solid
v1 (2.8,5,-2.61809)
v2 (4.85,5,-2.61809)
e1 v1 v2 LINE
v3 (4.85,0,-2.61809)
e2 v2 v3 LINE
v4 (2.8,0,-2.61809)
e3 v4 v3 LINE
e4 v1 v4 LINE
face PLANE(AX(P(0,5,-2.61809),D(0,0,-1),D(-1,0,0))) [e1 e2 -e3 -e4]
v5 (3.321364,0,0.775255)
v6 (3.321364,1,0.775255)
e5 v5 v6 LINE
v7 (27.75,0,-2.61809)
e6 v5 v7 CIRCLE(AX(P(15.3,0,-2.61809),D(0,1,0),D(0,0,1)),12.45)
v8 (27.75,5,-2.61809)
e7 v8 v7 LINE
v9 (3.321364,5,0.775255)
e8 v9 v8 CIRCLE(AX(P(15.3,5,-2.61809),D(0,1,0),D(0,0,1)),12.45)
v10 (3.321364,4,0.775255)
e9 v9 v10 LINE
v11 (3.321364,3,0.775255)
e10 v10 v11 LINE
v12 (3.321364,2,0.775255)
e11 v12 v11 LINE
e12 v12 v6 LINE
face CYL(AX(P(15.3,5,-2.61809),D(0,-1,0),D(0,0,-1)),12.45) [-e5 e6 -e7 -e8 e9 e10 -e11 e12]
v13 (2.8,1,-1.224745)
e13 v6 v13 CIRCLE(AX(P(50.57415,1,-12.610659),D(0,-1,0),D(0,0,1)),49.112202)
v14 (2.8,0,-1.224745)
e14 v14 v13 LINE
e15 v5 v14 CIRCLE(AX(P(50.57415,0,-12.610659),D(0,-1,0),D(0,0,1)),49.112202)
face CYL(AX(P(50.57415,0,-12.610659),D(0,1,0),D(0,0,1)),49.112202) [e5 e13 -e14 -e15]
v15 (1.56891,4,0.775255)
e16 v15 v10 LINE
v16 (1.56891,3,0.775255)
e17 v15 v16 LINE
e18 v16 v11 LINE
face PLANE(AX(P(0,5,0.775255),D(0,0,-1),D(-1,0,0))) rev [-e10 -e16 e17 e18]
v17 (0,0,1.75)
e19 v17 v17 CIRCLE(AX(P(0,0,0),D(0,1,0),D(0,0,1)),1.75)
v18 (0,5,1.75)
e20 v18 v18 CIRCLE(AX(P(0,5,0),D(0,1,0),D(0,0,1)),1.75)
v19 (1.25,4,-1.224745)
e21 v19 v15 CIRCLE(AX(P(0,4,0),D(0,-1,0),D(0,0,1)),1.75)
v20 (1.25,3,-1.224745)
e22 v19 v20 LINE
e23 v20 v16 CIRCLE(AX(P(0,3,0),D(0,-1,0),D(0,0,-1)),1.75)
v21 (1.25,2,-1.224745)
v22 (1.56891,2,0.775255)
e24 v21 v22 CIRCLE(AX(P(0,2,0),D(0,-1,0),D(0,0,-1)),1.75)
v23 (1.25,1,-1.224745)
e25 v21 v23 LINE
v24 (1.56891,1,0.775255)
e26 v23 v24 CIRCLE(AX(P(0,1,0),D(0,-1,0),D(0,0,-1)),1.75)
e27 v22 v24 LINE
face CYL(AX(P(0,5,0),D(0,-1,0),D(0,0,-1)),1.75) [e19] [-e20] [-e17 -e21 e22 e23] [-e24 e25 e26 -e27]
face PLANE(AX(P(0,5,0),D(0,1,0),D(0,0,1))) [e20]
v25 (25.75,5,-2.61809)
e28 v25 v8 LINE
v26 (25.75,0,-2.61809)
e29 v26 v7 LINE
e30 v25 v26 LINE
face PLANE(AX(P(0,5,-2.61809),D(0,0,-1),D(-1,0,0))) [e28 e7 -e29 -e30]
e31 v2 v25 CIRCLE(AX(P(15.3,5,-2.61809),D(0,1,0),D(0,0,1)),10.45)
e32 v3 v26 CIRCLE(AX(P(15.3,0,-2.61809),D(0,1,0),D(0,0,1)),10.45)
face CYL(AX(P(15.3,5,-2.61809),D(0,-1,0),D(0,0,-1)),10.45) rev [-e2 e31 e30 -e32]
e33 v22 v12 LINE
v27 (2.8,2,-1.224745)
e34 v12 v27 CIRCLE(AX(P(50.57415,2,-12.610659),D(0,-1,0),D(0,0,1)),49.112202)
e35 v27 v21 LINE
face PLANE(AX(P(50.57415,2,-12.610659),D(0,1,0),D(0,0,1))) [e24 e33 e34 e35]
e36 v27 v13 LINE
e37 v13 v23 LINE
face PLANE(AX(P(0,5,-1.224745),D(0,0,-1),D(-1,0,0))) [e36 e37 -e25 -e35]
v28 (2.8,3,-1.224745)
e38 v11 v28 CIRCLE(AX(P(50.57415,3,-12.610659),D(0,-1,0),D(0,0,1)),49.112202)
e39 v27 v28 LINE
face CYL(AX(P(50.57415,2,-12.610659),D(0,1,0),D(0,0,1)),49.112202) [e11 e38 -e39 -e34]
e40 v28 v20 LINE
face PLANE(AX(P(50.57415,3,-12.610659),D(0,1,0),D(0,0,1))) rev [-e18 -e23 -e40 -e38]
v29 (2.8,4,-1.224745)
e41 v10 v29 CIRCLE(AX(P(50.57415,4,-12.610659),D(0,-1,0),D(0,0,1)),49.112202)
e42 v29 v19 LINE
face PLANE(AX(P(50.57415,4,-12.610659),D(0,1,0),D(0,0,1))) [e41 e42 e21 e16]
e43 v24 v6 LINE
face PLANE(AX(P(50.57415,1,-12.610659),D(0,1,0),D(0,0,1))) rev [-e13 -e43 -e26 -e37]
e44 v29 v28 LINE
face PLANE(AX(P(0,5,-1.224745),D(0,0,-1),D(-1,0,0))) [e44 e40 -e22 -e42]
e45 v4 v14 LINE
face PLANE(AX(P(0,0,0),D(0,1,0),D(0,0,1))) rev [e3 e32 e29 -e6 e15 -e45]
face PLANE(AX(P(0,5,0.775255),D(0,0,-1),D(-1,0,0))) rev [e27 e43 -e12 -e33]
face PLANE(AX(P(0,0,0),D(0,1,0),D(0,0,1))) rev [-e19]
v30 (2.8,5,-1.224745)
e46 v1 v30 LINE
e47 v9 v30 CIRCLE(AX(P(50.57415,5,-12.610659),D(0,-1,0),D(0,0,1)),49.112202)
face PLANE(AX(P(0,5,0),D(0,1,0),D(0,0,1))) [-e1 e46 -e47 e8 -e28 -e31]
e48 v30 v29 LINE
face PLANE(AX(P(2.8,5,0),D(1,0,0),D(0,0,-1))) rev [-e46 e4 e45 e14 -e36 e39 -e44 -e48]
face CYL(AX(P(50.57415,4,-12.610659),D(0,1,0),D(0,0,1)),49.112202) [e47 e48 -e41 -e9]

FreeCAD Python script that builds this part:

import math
import FreeCAD as App
import Part
import Sketcher

doc = App.newDocument("Part")
body = doc.addObject("PartDesign::Body", "Body")

sketch1 = body.newObject("Sketcher::SketchObject", "Sketch")
sketch1.AttachmentSupport = (doc.getObject("XZ_Plane"), [""])
sketch1.MapMode = "FlatFace"
sketch1.addGeometry(Part.LineSegment(App.Vector(4.85, -2.61809, 0), App.Vector(2.8, -2.61809, 0)), False)
sketch1.addGeometry(Part.LineSegment(App.Vector(2.8, -2.61809, 0), App.Vector(2.8, -1.224745, 0)), False)
sketch1.addGeometry(Part.LineSegment(App.Vector(2.8, -1.224745, 0), App.Vector(1.25, -1.224745, 0)), False)
sketch1.addGeometry(Part.ArcOfCircle(Part.Circle(App.Vector(0, 0, 0), App.Vector(0, 0, 1), 1.75), math.radians(26.295637), math.radians(315.584691)), False)
sketch1.addGeometry(Part.LineSegment(App.Vector(1.56891, 0.775255, 0), App.Vector(3.321364, 0.775255, 0)), False)
sketch1.addGeometry(Part.ArcOfCircle(Part.Circle(App.Vector(15.3, -2.61809, 0), App.Vector(0, 0, 1), 12.45), math.radians(0), math.radians(164.183472)), False)
sketch1.addGeometry(Part.LineSegment(App.Vector(27.75, -2.61809, 0), App.Vector(25.75, -2.61809, 0)), False)
sketch1.addGeometry(Part.ArcOfCircle(Part.Circle(App.Vector(15.3, -2.61809, 0), App.Vector(0, 0, 1), 10.45), math.radians(0), math.radians(180)), False)
sketch1.addConstraint(Sketcher.Constraint("Coincident", 0, 2, 1, 1))
sketch1.addConstraint(Sketcher.Constraint("Coincident", 1, 2, 2, 1))
sketch1.addConstraint(Sketcher.Constraint("Coincident", 2, 2, 3, 2))
sketch1.addConstraint(Sketcher.Constraint("Coincident", 3, 1, 4, 1))
sketch1.addConstraint(Sketcher.Constraint("Coincident", 4, 2, 5, 2))
sketch1.addConstraint(Sketcher.Constraint("Coincident", 5, 1, 6, 1))
sketch1.addConstraint(Sketcher.Constraint("Coincident", 6, 2, 7, 1))
sketch1.addConstraint(Sketcher.Constraint("Coincident", 7, 2, 0, 1))
sketch1.addConstraint(Sketcher.Constraint("Horizontal", 0))
sketch1.addConstraint(Sketcher.Constraint("Vertical", 1))
sketch1.addConstraint(Sketcher.Constraint("Horizontal", 2))
sketch1.addConstraint(Sketcher.Constraint("Horizontal", 4))
sketch1.addConstraint(Sketcher.Constraint("Horizontal", 6))
sketch1.addConstraint(Sketcher.Constraint("Coincident", 3, 3, -1, 1))
sketch1.addConstraint(Sketcher.Constraint("Coincident", 7, 3, 5, 3))
sketch1.addConstraint(Sketcher.Constraint("Horizontal", 7, 3, 0, 2))
sketch1.addConstraint(Sketcher.Constraint("Horizontal", 0, 2, 5, 1))
sketch1.addConstraint(Sketcher.Constraint("DistanceX", 6, 2, 6, 1, 2.0))
sketch1.addConstraint(Sketcher.Constraint("Radius", 3, 1.75))
sketch1.addConstraint(Sketcher.Constraint("Radius", 5, 12.45))
sketch1.addConstraint(Sketcher.Constraint("DistanceY", 2, 2, 3, 1, 2.0))
sketch1.addConstraint(Sketcher.Constraint("DistanceX", 0, 2, 0, 1, 2.05))
sketch1.addConstraint(Sketcher.Constraint("DistanceX", 2, 2, 2, 1, 1.55))
sketch1.addConstraint(Sketcher.Constraint("DistanceX", -1, 1, 5, 3, 15.3))
sketch1.addConstraint(Sketcher.Constraint("DistanceX", 4, 1, 4, 2, 1.752454))
pad1 = body.newObject("PartDesign::Pad", "Pad")
pad1.Profile = sketch1
pad1.Length = 5
pad1.Reversed = True

sketch2 = body.newObject("Sketcher::SketchObject", "Sketch001")
sketch2.AttachmentSupport = (doc.getObject("XZ_Plane"), [""])
sketch2.MapMode = "FlatFace"
sketch2.AttachmentOffset = App.Placement(App.Vector(0, 0, -4), App.Rotation())
sketch2.addGeometry(Part.LineSegment(App.Vector(2.8, -1.224745, 0), App.Vector(1.25, -1.224745, 0)), False)
sketch2.addGeometry(Part.ArcOfCircle(Part.Circle(App.Vector(0, 0, 0), App.Vector(0, 0, 1), 1.75), math.radians(-44.415309), math.radians(26.295637)), False)
sketch2.addGeometry(Part.LineSegment(App.Vector(1.56891, 0.775255, 0), App.Vector(3.321364, 0.775255, 0)), False)
sketch2.addGeometry(Part.ArcOfCircle(Part.Circle(App.Vector(50.57415, -12.610659, 0), App.Vector(0, 0, 1), 49.112203), math.radians(164.183472), math.radians(166.594886)), False)
sketch2.addConstraint(Sketcher.Constraint("Coincident", 0, 2, 1, 1))
sketch2.addConstraint(Sketcher.Constraint("Coincident", 1, 2, 2, 1))
sketch2.addConstraint(Sketcher.Constraint("Coincident", 2, 2, 3, 1))
sketch2.addConstraint(Sketcher.Constraint("Coincident", 3, 2, 0, 1))
sketch2.addConstraint(Sketcher.Constraint("Horizontal", 0))
sketch2.addConstraint(Sketcher.Constraint("Horizontal", 2))
sketch2.addConstraint(Sketcher.Constraint("Coincident", 1, 3, -1, 1))
sketch2.addConstraint(Sketcher.Constraint("Radius", 1, 1.75))
sketch2.addConstraint(Sketcher.Constraint("DistanceY", 0, 2, 1, 2, 2.0))
sketch2.addConstraint(Sketcher.Constraint("DistanceX", 0, 2, 0, 1, 1.55))
sketch2.addConstraint(Sketcher.Constraint("DistanceX", -1, 1, 3, 2, 2.8))
sketch2.addConstraint(Sketcher.Constraint("Radius", 3, 49.112203))
sketch2.addConstraint(Sketcher.Constraint("DistanceX", 2, 1, 2, 2, 1.752454))
pocket1 = body.newObject("PartDesign::Pocket", "Pocket")
pocket1.Profile = sketch2
pocket1.Length = 1

sketch3 = body.newObject("Sketcher::SketchObject", "Sketch002")
sketch3.AttachmentSupport = (doc.getObject("XZ_Plane"), [""])
sketch3.MapMode = "FlatFace"
sketch3.AttachmentOffset = App.Placement(App.Vector(0, 0, -2), App.Rotation())
sketch3.addGeometry(Part.LineSegment(App.Vector(2.8, -1.224745, 0), App.Vector(1.25, -1.224745, 0)), False)
sketch3.addGeometry(Part.ArcOfCircle(Part.Circle(App.Vector(0, 0, 0), App.Vector(0, 0, 1), 1.75), math.radians(-44.415309), math.radians(26.295637)), False)
sketch3.addGeometry(Part.LineSegment(App.Vector(1.56891, 0.775255, 0), App.Vector(3.321364, 0.775255, 0)), False)
sketch3.addGeometry(Part.ArcOfCircle(Part.Circle(App.Vector(50.57415, -12.610659, 0), App.Vector(0, 0, 1), 49.112203), math.radians(164.183472), math.radians(166.594886)), False)
sketch3.addConstraint(Sketcher.Constraint("Coincident", 0, 2, 1, 1))
sketch3.addConstraint(Sketcher.Constraint("Coincident", 1, 2, 2, 1))
sketch3.addConstraint(Sketcher.Constraint("Coincident", 2, 2, 3, 1))
sketch3.addConstraint(Sketcher.Constraint("Coincident", 3, 2, 0, 1))
sketch3.addConstraint(Sketcher.Constraint("Horizontal", 0))
sketch3.addConstraint(Sketcher.Constraint("Horizontal", 2))
sketch3.addConstraint(Sketcher.Constraint("Coincident", 1, 3, -1, 1))
sketch3.addConstraint(Sketcher.Constraint("Radius", 1, 1.75))
sketch3.addConstraint(Sketcher.Constraint("DistanceY", 0, 2, 1, 2, 2.0))
sketch3.addConstraint(Sketcher.Constraint("DistanceX", 0, 2, 0, 1, 1.55))
sketch3.addConstraint(Sketcher.Constraint("DistanceX", -1, 1, 3, 2, 2.8))
sketch3.addConstraint(Sketcher.Constraint("Radius", 3, 49.112203))
sketch3.addConstraint(Sketcher.Constraint("DistanceX", 2, 1, 2, 2, 1.752454))
pocket2 = body.newObject("PartDesign::Pocket", "Pocket001")
pocket2.Profile = sketch3
pocket2.Length = 1

sketch4 = body.newObject("Sketcher::SketchObject", "Sketch003")
sketch4.AttachmentSupport = (doc.getObject("XZ_Plane"), [""])
sketch4.MapMode = "FlatFace"
sketch4.addGeometry(Part.LineSegment(App.Vector(2.8, -1.224745, 0), App.Vector(1.25, -1.224745, 0)), False)
sketch4.addGeometry(Part.ArcOfCircle(Part.Circle(App.Vector(0, 0, 0), App.Vector(0, 0, 1), 1.75), math.radians(-44.415309), math.radians(26.295637)), False)
sketch4.addGeometry(Part.LineSegment(App.Vector(1.56891, 0.775255, 0), App.Vector(3.321364, 0.775255, 0)), False)
sketch4.addGeometry(Part.ArcOfCircle(Part.Circle(App.Vector(50.57415, -12.610659, 0), App.Vector(0, 0, 1), 49.112203), math.radians(164.183472), math.radians(166.594886)), False)
sketch4.addConstraint(Sketcher.Constraint("Coincident", 0, 2, 1, 1))
sketch4.addConstraint(Sketcher.Constraint("Coincident", 1, 2, 2, 1))
sketch4.addConstraint(Sketcher.Constraint("Coincident", 2, 2, 3, 1))
sketch4.addConstraint(Sketcher.Constraint("Coincident", 3, 2, 0, 1))
sketch4.addConstraint(Sketcher.Constraint("Horizontal", 0))
sketch4.addConstraint(Sketcher.Constraint("Horizontal", 2))
sketch4.addConstraint(Sketcher.Constraint("Coincident", 1, 3, -1, 1))
sketch4.addConstraint(Sketcher.Constraint("Radius", 1, 1.75))
sketch4.addConstraint(Sketcher.Constraint("DistanceY", 0, 2, 1, 2, 2.0))
sketch4.addConstraint(Sketcher.Constraint("DistanceX", 0, 2, 0, 1, 1.55))
sketch4.addConstraint(Sketcher.Constraint("DistanceX", -1, 1, 3, 2, 2.8))
sketch4.addConstraint(Sketcher.Constraint("Radius", 3, 49.112203))
sketch4.addConstraint(Sketcher.Constraint("DistanceX", 2, 1, 2, 2, 1.752454))
pocket3 = body.newObject("PartDesign::Pocket", "Pocket002")
pocket3.Profile = sketch4
pocket3.Length = 1

doc.recompute()
